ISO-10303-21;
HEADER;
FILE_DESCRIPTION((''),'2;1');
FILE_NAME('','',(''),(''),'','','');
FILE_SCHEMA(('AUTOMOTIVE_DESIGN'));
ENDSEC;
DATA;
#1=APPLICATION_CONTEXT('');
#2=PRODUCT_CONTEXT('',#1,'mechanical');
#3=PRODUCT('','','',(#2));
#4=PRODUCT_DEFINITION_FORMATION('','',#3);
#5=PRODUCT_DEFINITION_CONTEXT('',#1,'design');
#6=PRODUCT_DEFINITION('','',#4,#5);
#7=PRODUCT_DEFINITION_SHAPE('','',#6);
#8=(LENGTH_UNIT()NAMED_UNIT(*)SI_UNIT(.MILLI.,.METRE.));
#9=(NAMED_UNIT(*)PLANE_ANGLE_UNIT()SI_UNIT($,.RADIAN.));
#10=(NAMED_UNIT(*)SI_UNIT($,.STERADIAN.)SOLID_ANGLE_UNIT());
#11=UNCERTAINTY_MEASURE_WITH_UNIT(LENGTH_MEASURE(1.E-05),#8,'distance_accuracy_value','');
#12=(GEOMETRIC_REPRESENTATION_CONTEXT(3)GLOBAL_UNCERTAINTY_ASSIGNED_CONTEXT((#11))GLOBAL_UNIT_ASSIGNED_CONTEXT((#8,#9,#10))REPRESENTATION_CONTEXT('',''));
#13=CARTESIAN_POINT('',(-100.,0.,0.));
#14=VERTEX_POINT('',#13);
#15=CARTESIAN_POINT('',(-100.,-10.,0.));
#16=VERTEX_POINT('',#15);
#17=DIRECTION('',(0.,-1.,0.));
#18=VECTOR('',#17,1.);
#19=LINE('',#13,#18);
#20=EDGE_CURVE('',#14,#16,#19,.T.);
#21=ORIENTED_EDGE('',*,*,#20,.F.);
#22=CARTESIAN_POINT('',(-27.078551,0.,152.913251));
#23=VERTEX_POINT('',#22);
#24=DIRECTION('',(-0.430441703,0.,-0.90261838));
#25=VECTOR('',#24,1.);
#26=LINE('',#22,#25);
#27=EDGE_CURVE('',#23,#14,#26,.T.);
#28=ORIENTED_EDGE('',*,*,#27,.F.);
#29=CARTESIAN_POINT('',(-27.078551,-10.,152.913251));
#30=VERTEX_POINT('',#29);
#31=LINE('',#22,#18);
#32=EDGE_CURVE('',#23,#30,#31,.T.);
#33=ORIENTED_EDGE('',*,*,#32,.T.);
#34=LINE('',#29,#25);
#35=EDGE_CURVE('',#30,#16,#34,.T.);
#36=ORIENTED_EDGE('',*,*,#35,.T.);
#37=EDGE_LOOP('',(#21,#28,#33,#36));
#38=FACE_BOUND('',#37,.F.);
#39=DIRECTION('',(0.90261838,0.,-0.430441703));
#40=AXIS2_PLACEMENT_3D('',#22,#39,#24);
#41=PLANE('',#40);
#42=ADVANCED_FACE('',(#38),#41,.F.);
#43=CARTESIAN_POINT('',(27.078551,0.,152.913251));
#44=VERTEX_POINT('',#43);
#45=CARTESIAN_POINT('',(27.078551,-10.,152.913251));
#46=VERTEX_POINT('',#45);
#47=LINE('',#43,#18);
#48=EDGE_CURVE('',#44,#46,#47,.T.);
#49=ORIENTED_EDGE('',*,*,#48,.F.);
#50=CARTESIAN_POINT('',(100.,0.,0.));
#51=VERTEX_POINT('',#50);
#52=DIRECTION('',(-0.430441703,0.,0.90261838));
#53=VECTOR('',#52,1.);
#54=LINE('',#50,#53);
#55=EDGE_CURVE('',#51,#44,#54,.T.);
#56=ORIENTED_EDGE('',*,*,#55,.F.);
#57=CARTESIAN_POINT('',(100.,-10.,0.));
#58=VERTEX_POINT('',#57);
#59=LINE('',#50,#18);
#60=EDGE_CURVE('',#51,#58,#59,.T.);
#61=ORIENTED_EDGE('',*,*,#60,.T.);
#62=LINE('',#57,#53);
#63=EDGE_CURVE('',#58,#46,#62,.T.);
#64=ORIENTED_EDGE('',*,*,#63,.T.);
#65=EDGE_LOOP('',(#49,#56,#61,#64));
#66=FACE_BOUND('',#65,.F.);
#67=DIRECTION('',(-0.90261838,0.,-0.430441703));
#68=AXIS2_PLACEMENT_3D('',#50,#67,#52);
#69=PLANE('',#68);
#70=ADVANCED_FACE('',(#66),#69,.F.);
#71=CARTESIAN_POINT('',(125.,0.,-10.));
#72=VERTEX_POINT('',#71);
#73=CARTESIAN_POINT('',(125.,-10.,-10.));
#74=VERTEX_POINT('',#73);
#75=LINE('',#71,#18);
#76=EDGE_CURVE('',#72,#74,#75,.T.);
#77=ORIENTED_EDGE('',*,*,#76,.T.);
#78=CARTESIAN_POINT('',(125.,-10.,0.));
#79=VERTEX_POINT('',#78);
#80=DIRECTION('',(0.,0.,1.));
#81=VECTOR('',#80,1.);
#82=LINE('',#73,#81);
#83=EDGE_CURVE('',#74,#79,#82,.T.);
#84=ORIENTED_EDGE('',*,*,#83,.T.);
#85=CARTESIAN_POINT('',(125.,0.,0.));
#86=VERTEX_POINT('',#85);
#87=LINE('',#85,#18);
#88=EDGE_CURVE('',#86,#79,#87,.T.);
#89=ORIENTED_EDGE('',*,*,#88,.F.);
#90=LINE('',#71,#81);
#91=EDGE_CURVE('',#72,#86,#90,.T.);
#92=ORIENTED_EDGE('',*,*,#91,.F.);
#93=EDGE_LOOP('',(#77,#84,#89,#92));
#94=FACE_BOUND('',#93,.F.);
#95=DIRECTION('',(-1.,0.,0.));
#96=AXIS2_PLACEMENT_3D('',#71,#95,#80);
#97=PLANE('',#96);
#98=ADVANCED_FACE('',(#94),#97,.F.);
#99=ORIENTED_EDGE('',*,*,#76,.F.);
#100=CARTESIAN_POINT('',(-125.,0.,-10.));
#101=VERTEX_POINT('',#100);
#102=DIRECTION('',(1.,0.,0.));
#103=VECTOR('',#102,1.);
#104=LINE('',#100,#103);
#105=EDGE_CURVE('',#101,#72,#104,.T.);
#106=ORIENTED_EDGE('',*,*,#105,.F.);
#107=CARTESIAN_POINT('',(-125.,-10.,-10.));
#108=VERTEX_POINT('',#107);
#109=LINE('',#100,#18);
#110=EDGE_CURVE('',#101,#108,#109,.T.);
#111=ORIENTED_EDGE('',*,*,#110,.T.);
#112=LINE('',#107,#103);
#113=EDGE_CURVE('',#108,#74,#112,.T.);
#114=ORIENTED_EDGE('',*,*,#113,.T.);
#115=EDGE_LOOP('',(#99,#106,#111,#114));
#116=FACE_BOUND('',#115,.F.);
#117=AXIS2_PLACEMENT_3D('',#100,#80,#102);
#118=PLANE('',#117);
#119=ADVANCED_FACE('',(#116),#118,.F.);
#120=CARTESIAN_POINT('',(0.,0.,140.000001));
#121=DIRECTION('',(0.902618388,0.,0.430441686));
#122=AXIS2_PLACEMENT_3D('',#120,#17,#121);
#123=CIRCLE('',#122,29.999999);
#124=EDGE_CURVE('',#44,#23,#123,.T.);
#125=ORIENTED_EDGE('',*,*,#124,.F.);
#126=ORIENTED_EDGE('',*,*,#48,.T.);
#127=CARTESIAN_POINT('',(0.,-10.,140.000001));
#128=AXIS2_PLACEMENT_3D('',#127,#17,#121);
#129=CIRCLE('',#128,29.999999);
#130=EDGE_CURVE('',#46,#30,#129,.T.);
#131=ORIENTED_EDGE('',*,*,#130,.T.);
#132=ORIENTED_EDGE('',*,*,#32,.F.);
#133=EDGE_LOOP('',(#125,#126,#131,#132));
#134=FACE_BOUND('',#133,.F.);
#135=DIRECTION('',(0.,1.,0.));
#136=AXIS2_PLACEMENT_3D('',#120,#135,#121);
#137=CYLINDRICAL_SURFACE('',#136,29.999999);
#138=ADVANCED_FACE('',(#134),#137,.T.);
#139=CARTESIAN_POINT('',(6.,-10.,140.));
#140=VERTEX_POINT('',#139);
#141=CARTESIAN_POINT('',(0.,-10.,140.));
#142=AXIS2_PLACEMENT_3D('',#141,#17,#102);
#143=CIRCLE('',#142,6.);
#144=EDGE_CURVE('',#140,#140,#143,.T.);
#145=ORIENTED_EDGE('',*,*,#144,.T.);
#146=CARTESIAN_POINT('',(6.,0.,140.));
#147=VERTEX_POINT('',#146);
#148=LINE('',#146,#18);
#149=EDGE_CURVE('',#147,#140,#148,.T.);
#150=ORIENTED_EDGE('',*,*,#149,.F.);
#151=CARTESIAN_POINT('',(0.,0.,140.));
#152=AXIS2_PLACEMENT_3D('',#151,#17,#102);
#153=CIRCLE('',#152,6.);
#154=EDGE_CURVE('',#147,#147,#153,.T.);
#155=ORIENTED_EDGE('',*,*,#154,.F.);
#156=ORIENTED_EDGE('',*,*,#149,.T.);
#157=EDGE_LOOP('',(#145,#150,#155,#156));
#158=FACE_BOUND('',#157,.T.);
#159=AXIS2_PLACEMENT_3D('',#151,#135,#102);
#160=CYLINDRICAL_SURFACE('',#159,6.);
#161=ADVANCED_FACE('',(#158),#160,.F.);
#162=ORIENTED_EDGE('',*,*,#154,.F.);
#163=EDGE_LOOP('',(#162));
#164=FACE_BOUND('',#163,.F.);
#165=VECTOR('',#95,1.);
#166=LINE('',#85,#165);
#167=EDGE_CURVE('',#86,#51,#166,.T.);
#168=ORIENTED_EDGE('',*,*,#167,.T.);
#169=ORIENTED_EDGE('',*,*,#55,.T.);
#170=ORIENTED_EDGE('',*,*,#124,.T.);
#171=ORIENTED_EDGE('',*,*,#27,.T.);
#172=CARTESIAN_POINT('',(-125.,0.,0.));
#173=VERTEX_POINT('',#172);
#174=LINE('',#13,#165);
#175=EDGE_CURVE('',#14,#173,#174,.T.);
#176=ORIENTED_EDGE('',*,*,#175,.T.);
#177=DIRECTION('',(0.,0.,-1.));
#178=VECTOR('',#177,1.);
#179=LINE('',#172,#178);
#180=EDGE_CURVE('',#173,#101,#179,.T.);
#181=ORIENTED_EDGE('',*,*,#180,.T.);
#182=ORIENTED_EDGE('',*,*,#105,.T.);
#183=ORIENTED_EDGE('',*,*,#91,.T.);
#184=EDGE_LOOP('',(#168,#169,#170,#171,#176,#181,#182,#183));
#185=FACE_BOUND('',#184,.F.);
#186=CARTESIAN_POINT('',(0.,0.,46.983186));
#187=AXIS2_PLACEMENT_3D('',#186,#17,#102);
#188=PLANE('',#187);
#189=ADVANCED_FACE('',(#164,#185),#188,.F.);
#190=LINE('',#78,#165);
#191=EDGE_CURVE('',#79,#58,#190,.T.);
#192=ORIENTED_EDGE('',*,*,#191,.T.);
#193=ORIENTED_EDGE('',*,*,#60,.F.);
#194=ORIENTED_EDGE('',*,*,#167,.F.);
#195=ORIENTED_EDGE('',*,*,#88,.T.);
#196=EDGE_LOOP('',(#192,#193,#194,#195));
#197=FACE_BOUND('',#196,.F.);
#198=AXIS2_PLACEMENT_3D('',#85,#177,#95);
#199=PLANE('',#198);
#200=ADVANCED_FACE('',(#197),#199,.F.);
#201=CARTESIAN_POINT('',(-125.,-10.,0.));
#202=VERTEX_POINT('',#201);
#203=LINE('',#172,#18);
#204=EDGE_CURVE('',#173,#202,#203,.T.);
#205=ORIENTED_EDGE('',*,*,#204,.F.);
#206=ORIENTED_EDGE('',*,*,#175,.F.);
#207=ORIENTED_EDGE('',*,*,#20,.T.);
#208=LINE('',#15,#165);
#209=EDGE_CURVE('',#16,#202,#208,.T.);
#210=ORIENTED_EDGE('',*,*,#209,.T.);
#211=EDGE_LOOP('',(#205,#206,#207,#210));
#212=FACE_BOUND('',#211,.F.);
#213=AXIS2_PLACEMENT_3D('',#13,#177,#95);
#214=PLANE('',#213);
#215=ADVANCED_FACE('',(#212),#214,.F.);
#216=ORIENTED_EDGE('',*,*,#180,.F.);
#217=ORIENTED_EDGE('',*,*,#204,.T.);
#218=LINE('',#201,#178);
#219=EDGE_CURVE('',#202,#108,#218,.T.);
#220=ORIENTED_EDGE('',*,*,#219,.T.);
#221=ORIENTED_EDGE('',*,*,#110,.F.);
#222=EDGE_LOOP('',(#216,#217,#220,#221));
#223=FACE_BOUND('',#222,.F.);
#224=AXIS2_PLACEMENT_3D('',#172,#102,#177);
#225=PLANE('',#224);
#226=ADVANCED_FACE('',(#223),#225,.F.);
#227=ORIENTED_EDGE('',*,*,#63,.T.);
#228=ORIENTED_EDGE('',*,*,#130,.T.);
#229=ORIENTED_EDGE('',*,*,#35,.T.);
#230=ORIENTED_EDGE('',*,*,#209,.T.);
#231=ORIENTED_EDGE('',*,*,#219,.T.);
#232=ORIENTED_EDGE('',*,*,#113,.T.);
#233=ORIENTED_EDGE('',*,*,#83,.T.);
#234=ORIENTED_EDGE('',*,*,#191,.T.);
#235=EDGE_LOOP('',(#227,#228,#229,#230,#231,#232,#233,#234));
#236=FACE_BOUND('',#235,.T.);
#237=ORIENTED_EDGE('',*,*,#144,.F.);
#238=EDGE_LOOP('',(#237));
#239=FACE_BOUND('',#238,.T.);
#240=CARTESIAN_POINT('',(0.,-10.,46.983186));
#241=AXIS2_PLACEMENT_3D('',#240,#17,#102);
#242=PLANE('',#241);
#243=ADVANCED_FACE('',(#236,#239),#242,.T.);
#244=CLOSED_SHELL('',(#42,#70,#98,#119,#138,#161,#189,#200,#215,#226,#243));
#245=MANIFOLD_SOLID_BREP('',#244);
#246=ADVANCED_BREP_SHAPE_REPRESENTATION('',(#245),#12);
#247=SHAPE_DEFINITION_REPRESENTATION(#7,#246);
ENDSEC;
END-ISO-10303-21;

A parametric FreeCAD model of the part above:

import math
import FreeCAD as App
import Part
import Sketcher
from FreeCAD import Vector
Q = App.Units.Quantity

doc = App.newDocument("Part")
body = doc.addObject("PartDesign::Body", "Body")

# Sketch on XZ plane
sketch1 = doc.addObject("Sketcher::SketchObject", "Sketch")
body.addObject(sketch1)
sketch1.AttachmentSupport = (doc.XZ_Plane, [""])
sketch1.MapMode = "FlatFace"
sketch1.addGeometry(Part.LineSegment(Vector(100, 0, 0), Vector(27, 153, 0)), False)
sketch1.addGeometry(Part.ArcOfCircle(Part.Circle(Vector(0, 140, 0), Vector(0, 0, 1), 30), math.radians(25), math.radians(155)), False)
sketch1.addGeometry(Part.LineSegment(Vector(-27, 153, 0), Vector(-100, 0, 0)), False)
sketch1.addGeometry(Part.LineSegment(Vector(-100, 0, 0), Vector(-125, 0, 0)), False)
sketch1.addGeometry(Part.LineSegment(Vector(-125, 0, 0), Vector(-125, -10, 0)), False)
sketch1.addGeometry(Part.LineSegment(Vector(-125, -10, 0), Vector(125, -10, 0)), False)
sketch1.addGeometry(Part.LineSegment(Vector(125, -10, 0), Vector(125, 0, 0)), False)
sketch1.addGeometry(Part.LineSegment(Vector(125, 0, 0), Vector(100, 0, 0)), False)
sketch1.addGeometry(Part.Circle(Vector(0, 140, 0), Vector(0, 0, 1), 6), False)
sketch1.addConstraint(Sketcher.Constraint("Tangent", 0, 2, 1, 1))
sketch1.addConstraint(Sketcher.Constraint("Tangent", 1, 2, 2, 1))
sketch1.addConstraint(Sketcher.Constraint("Coincident", 2, 2, 3, 1))
sketch1.addConstraint(Sketcher.Constraint("Coincident", 3, 2, 4, 1))
sketch1.addConstraint(Sketcher.Constraint("Coincident", 4, 2, 5, 1))
sketch1.addConstraint(Sketcher.Constraint("Coincident", 5, 2, 6, 1))
sketch1.addConstraint(Sketcher.Constraint("Coincident", 6, 2, 7, 1))
sketch1.addConstraint(Sketcher.Constraint("Coincident", 7, 2, 0, 1))
sketch1.addConstraint(Sketcher.Constraint("Horizontal", 3))
sketch1.addConstraint(Sketcher.Constraint("Vertical", 4))
sketch1.addConstraint(Sketcher.Constraint("Horizontal", 5))
sketch1.addConstraint(Sketcher.Constraint("Vertical", 6))
sketch1.addConstraint(Sketcher.Constraint("Horizontal", 7))
sketch1.addConstraint(Sketcher.Constraint("Coincident", 8, 3, 1, 3))
sketch1.addConstraint(Sketcher.Constraint("Symmetric", 3, 2, 6, 2, -1, 1))
sketch1.addConstraint(Sketcher.Constraint("Symmetric", 0, 2, 1, 2, -2))
sketch1.addConstraint(Sketcher.Constraint("PointOnObject", 2, 2, -1))
sketch1.addConstraint(Sketcher.Constraint("Diameter", 8, Q("12 mm")))
sketch1.addConstraint(Sketcher.Constraint("Radius", 1, Q("29.999999 mm")))
sketch1.addConstraint(Sketcher.Constraint("DistanceX", 3, 2, 3, 1, Q("25 mm")))
sketch1.addConstraint(Sketcher.Constraint("DistanceX", 5, 1, 5, 2, Q("250 mm")))
sketch1.addConstraint(Sketcher.Constraint("DistanceY", 4, 2, 4, 1, Q("10 mm")))
sketch1.addConstraint(Sketcher.Constraint("DistanceY", -1, 1, 1, 3, Q("140.000001 mm")))
pad1 = doc.addObject("PartDesign::Pad", "Pad")
body.addObject(pad1)
pad1.Profile = sketch1
pad1.Length = 10

doc.recompute()
